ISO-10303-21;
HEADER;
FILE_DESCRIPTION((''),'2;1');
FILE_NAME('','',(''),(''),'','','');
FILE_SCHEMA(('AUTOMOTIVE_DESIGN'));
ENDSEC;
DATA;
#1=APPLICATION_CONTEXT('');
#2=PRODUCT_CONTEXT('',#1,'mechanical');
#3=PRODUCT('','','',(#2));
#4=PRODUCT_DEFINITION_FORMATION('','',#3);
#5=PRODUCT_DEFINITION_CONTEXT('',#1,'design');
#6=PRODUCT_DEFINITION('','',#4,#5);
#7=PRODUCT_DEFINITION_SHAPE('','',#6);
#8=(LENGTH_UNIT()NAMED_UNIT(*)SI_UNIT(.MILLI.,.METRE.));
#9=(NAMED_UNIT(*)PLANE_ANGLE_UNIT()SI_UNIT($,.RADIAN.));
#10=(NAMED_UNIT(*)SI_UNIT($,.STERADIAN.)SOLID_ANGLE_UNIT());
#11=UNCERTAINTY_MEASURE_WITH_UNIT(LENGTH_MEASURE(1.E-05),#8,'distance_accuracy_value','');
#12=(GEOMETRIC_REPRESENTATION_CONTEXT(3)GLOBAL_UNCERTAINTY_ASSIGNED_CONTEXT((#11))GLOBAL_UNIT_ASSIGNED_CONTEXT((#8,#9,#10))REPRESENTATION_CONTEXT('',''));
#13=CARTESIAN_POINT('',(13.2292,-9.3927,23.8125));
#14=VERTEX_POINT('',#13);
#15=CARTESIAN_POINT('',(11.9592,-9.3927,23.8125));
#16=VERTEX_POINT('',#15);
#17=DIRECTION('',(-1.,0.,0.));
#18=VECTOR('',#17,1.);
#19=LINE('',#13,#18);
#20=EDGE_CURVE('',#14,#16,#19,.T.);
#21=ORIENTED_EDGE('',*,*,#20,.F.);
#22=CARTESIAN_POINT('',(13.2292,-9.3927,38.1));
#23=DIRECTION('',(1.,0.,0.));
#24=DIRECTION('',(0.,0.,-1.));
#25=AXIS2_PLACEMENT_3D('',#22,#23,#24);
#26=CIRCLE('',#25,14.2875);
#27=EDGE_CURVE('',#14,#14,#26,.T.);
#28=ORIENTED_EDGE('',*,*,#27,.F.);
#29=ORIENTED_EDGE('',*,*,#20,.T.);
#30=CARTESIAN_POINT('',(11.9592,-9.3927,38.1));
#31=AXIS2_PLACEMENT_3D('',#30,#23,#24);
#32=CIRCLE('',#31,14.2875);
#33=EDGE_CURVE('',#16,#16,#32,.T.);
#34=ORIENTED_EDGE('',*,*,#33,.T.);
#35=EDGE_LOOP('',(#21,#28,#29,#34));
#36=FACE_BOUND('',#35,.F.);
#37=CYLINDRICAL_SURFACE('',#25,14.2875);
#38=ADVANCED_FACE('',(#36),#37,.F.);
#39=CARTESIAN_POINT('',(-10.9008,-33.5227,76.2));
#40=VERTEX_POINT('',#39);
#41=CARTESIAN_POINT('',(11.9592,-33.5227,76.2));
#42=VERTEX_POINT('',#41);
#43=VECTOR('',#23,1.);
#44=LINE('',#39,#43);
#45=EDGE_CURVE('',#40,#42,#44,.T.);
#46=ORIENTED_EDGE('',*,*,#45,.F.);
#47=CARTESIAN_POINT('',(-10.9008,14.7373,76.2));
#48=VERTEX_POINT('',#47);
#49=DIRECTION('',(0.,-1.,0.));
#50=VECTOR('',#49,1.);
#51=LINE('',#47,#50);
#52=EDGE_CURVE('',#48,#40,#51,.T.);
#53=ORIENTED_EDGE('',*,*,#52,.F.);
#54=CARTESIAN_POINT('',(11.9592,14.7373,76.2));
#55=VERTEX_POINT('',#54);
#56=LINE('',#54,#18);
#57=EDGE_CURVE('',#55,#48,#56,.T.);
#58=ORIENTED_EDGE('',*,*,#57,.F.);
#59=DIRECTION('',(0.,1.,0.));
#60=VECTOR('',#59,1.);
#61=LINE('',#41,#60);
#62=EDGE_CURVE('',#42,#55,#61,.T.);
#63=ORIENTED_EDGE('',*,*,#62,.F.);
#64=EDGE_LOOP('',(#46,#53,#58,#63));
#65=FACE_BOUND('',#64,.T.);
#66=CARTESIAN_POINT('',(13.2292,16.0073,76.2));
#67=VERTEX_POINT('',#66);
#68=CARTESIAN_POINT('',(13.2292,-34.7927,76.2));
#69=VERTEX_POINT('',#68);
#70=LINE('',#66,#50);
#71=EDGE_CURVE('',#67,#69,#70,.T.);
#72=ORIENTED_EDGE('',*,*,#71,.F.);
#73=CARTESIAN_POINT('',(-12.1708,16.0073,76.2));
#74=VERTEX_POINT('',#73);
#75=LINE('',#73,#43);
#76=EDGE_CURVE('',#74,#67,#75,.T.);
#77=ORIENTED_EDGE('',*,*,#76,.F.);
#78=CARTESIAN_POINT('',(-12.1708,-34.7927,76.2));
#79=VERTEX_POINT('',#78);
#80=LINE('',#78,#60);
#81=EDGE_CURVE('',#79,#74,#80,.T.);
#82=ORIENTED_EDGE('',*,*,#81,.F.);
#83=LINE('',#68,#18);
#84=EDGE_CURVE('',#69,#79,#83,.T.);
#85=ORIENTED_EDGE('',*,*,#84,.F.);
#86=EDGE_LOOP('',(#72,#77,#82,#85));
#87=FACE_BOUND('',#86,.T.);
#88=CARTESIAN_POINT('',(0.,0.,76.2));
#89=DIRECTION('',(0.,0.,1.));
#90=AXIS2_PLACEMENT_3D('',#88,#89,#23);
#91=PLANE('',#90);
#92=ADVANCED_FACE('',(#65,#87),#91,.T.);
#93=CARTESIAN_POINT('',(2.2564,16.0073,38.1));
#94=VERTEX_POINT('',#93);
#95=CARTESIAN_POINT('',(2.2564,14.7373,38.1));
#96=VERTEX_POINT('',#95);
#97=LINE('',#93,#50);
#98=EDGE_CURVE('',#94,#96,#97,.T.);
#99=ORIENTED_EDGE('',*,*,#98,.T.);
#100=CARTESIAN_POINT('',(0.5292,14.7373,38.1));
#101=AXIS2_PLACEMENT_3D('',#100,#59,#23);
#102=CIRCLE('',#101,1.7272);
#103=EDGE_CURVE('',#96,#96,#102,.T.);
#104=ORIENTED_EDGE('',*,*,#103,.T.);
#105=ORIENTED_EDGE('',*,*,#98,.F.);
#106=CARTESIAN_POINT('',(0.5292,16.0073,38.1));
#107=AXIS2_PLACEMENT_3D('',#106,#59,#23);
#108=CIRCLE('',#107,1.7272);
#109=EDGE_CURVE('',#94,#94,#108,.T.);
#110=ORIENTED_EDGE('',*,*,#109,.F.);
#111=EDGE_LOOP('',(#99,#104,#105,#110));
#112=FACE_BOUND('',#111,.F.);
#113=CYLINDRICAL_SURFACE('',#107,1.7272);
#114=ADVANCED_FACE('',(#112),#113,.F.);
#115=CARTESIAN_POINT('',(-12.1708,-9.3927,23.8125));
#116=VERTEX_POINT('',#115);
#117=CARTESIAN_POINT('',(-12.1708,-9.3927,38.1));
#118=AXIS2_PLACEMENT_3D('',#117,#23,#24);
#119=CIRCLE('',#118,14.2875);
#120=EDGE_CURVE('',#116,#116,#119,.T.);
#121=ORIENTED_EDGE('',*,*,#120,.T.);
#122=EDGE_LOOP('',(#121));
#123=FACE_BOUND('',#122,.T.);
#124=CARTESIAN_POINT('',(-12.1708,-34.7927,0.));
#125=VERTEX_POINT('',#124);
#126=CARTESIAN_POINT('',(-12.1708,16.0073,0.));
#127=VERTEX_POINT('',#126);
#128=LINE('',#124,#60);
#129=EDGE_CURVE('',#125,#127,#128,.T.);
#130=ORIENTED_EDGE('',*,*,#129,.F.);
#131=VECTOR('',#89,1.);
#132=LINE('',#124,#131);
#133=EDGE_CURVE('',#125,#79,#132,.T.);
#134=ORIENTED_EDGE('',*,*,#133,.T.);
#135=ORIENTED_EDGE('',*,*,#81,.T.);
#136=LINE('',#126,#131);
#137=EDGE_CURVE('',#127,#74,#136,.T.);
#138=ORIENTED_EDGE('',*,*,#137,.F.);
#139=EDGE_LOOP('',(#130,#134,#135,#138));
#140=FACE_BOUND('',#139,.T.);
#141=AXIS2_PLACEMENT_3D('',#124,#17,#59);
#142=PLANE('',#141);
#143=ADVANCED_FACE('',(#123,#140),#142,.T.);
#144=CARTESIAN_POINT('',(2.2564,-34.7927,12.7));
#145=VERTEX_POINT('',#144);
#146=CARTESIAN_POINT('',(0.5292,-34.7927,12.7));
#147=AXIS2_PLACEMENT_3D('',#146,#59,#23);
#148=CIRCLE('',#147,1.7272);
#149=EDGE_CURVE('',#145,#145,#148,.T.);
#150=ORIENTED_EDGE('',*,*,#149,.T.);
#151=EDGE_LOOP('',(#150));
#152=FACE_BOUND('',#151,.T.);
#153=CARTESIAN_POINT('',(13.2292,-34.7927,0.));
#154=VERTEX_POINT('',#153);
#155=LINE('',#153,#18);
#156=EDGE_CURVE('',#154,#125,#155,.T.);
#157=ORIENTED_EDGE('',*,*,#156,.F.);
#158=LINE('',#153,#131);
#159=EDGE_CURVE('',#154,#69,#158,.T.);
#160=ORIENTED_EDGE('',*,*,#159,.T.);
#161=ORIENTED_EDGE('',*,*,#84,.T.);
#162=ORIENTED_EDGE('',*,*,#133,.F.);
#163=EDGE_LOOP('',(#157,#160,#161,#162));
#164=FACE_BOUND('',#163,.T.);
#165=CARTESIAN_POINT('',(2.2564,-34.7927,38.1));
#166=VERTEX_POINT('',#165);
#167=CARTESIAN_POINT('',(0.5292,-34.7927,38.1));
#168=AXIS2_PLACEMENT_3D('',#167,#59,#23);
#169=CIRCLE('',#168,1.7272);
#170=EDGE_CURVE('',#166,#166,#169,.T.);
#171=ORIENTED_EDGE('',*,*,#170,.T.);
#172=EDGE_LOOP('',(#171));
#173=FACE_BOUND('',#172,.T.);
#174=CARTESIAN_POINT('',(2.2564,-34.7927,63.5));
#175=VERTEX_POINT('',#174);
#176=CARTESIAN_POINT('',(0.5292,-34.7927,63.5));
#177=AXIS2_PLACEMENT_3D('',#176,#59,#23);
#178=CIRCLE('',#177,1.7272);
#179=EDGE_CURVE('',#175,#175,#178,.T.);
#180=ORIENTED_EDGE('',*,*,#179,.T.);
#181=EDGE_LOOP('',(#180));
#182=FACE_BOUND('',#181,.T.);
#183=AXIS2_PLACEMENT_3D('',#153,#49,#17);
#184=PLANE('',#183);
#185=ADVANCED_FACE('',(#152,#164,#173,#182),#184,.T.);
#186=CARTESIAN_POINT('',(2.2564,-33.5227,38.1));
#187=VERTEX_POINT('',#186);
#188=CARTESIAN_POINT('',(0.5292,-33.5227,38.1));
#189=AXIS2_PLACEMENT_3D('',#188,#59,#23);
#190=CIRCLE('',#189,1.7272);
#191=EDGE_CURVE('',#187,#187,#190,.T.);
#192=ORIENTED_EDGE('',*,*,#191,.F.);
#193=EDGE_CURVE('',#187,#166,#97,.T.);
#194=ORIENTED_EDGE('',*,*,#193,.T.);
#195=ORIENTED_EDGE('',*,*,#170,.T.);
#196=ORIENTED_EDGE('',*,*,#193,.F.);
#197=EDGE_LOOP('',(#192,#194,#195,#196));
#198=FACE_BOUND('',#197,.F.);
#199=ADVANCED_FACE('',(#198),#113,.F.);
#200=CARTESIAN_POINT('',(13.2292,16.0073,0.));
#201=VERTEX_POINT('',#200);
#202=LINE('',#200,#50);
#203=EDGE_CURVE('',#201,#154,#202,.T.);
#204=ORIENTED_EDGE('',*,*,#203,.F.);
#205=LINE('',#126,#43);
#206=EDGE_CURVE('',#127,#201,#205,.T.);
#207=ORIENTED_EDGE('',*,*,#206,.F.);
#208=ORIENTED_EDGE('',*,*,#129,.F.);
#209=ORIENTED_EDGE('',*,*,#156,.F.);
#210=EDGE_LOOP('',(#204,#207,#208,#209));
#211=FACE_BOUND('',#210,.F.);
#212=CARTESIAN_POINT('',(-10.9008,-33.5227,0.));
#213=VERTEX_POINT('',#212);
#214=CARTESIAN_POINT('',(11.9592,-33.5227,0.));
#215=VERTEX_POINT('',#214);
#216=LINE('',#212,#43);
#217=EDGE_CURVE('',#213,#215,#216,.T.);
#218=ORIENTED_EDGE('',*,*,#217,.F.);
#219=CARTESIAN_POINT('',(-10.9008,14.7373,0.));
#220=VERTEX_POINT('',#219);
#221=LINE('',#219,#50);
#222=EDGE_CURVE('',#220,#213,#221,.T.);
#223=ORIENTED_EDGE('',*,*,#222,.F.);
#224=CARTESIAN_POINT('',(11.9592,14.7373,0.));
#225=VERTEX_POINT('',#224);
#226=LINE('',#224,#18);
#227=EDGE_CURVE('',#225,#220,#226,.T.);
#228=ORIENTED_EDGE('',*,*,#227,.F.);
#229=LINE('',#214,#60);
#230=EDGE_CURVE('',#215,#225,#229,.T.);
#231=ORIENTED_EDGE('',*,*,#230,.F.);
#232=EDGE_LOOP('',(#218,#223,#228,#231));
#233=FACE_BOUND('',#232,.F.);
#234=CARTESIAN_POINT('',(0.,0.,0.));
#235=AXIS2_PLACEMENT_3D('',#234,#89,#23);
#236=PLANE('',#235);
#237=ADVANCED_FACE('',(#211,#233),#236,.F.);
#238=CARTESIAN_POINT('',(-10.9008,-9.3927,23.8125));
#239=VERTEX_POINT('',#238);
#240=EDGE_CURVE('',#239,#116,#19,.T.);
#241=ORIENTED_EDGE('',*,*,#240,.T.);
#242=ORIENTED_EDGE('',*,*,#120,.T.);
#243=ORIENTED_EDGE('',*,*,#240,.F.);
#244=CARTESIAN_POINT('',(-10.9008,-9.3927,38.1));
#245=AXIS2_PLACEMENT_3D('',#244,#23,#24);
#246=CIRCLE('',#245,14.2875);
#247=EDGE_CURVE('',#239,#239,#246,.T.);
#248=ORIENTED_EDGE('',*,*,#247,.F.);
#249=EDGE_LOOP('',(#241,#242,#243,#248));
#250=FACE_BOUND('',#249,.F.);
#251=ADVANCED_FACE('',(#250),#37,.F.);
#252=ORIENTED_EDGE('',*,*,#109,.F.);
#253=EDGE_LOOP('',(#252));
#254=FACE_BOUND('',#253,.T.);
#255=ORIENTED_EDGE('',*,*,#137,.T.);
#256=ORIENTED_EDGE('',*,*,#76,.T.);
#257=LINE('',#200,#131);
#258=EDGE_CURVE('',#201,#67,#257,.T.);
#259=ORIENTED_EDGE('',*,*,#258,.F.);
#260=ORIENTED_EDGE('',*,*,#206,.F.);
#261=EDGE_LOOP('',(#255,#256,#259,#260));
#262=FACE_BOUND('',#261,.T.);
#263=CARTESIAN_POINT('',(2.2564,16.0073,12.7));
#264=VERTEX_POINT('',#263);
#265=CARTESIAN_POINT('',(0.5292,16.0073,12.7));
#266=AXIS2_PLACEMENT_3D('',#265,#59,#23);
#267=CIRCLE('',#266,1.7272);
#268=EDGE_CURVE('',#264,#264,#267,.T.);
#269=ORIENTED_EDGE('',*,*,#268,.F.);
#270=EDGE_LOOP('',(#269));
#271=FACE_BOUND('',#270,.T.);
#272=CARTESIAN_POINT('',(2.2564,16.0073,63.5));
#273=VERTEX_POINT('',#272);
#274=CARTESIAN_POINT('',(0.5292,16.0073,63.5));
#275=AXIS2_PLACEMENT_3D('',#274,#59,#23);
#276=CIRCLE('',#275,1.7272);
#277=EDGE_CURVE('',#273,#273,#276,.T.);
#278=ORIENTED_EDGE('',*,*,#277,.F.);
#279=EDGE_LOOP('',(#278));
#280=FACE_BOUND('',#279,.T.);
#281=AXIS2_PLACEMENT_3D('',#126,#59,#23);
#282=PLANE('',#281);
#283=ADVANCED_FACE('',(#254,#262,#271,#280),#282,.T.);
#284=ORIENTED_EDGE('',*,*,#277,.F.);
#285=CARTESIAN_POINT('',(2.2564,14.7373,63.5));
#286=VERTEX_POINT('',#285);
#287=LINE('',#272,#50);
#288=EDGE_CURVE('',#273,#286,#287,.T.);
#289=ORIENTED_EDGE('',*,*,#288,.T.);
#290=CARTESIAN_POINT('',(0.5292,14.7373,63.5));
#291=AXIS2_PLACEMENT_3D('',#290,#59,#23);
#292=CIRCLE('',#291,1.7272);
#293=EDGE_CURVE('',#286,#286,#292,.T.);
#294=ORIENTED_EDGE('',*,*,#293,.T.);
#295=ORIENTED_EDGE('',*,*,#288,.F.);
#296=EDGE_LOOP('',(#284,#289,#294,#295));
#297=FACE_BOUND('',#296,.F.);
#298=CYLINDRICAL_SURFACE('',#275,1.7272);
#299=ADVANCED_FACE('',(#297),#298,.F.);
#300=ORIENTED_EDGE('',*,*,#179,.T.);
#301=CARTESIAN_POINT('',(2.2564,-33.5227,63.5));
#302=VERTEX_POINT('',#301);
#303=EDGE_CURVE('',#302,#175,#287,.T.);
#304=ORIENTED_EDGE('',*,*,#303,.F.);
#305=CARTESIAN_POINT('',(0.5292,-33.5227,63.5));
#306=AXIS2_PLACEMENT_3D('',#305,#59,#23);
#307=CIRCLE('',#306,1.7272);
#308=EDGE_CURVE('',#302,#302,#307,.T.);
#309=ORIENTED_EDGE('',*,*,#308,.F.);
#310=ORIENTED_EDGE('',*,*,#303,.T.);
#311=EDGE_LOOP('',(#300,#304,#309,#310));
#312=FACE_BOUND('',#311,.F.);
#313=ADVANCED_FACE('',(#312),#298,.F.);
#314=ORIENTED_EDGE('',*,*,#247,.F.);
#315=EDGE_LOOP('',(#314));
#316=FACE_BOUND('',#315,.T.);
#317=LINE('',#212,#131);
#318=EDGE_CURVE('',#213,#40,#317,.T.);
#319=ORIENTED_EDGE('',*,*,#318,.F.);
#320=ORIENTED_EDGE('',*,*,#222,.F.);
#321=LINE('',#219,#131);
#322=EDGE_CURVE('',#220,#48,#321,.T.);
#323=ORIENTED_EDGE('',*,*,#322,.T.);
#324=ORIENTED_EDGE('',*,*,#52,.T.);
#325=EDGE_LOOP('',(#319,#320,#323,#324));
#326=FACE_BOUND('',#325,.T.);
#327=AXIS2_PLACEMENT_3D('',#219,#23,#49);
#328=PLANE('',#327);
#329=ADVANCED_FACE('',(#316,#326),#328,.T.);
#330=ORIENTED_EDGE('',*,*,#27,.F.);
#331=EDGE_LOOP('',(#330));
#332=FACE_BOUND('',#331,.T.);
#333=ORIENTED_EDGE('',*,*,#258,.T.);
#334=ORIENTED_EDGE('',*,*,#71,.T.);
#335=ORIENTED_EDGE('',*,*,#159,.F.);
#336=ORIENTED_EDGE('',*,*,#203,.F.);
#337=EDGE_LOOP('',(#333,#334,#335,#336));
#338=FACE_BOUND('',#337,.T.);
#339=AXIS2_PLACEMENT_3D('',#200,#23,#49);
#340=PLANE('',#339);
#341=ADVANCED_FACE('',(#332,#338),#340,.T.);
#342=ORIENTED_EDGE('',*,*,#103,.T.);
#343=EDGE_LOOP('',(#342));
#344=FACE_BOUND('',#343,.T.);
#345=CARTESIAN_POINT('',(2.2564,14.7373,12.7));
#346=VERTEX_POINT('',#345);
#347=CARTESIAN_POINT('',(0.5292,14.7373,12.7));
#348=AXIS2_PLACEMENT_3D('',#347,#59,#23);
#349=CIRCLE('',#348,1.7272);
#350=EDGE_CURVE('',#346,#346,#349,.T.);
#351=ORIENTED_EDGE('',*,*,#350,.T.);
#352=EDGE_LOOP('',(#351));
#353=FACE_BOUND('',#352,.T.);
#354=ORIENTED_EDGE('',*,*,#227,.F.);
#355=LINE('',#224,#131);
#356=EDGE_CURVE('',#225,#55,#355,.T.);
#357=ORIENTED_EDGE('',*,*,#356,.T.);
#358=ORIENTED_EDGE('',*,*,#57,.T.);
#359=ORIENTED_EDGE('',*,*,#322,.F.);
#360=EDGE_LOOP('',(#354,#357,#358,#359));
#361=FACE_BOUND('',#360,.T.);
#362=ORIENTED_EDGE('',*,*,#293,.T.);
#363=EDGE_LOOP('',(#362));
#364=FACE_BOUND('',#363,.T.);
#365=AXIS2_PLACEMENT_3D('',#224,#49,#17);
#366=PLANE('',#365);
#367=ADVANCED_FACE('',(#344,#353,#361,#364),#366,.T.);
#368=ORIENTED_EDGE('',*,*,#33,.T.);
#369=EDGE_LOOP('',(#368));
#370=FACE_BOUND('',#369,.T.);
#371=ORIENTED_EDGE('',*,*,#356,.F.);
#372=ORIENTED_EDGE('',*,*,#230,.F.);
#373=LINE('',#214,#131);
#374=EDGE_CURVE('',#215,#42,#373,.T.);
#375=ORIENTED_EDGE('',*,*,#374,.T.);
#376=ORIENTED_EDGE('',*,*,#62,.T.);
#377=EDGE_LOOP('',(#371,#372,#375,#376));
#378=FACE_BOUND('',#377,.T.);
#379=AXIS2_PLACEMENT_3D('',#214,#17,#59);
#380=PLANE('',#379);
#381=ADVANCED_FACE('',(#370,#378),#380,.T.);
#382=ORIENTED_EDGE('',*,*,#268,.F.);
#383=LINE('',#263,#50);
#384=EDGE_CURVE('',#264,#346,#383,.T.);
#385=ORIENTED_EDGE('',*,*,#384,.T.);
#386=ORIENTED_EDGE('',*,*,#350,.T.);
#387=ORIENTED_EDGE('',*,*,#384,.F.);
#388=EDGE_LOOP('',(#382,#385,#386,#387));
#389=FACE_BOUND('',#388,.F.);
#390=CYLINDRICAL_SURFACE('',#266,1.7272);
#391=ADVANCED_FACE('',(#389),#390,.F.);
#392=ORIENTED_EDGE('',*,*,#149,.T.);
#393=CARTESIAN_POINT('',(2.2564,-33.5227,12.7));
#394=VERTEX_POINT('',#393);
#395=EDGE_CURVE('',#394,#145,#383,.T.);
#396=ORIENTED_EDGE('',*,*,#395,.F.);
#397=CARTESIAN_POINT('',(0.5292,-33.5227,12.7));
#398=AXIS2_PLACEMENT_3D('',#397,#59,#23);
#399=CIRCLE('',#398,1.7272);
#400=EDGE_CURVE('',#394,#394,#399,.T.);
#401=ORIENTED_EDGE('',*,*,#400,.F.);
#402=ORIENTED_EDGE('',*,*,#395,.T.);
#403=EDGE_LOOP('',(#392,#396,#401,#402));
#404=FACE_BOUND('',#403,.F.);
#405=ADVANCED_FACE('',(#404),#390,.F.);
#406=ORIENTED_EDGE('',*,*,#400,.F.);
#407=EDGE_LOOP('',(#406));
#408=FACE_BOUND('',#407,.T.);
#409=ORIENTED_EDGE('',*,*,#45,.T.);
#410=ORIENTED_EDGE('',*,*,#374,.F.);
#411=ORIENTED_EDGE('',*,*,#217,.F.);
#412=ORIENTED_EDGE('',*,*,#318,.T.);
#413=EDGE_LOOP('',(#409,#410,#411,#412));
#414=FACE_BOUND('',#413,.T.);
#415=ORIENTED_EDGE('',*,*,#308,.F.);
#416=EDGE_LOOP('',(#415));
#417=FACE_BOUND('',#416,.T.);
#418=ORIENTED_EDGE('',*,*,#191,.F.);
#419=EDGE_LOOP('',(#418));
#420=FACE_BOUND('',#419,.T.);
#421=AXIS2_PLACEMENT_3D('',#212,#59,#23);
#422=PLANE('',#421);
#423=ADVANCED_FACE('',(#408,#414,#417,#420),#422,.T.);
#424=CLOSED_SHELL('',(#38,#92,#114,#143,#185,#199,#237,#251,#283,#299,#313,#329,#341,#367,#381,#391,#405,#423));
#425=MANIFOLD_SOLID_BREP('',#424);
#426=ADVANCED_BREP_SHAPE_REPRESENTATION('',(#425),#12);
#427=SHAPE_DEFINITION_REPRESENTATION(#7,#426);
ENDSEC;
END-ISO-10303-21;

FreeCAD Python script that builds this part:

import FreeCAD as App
import Part
import Sketcher

V = App.Vector
Q = App.Units.Quantity

doc = App.newDocument("Part")
body = doc.addObject("PartDesign::Body", "Body")

sketch1 = body.newObject("Sketcher::SketchObject", "Sketch")
sketch1.AttachmentSupport = (doc.getObject("XY_Plane"), [""])
sketch1.MapMode = "FlatFace"
sketch1.addGeometry([
    Part.LineSegment(V(13, 16, 0), V(-12, 16, 0)),
    Part.LineSegment(V(-12, 16, 0), V(-12, -35, 0)),
    Part.LineSegment(V(-12, -35, 0), V(13, -35, 0)),
    Part.LineSegment(V(13, -35, 0), V(13, 16, 0)),
    Part.LineSegment(V(-11, 15, 0), V(12, 15, 0)),
    Part.LineSegment(V(12, 15, 0), V(12, -34, 0)),
    Part.LineSegment(V(12, -34, 0), V(-11, -34, 0)),
    Part.LineSegment(V(-11, -34, 0), V(-11, 15, 0)),
], False)
sketch1.addConstraint([
    Sketcher.Constraint("Coincident", 0, 2, 1, 1),
    Sketcher.Constraint("Coincident", 1, 2, 2, 1),
    Sketcher.Constraint("Coincident", 2, 2, 3, 1),
    Sketcher.Constraint("Coincident", 3, 2, 0, 1),
    Sketcher.Constraint("Coincident", 4, 2, 5, 1),
    Sketcher.Constraint("Coincident", 5, 2, 6, 1),
    Sketcher.Constraint("Coincident", 6, 2, 7, 1),
    Sketcher.Constraint("Coincident", 7, 2, 4, 1),
    Sketcher.Constraint("Horizontal", 0),
    Sketcher.Constraint("Vertical", 1),
    Sketcher.Constraint("Horizontal", 2),
    Sketcher.Constraint("Vertical", 3),
    Sketcher.Constraint("Horizontal", 4),
    Sketcher.Constraint("Vertical", 5),
    Sketcher.Constraint("Horizontal", 6),
    Sketcher.Constraint("Vertical", 7),
    Sketcher.Constraint("DistanceX", 0, 2, 0, 1, Q("1 in")),
    Sketcher.Constraint("DistanceY", 1, 2, 1, 1, Q("2 in")),
    Sketcher.Constraint("DistanceX", 4, 2, 3, 2, Q("0.05 in")),
    Sketcher.Constraint("DistanceY", 4, 2, 3, 2, Q("0.05 in")),
    Sketcher.Constraint("DistanceY", 2, 2, 5, 2, Q("0.05 in")),
    Sketcher.Constraint("DistanceX", 1, 2, 6, 2, Q("0.05 in")),
    Sketcher.Constraint("DistanceY", -1, 1, 0, 2, Q("0.6302 in")),
    Sketcher.Constraint("DistanceX", 0, 2, -1, 1, 12.1708),
])
pad1 = body.newObject("PartDesign::Pad", "Pad")
pad1.Profile = sketch1
pad1.Length = Q("3 in")

sketch2 = body.newObject("Sketcher::SketchObject", "Sketch001")
sketch2.AttachmentSupport = (doc.getObject("XZ_Plane"), [""])
sketch2.MapMode = "FlatFace"
sketch2.AttachmentOffset = App.Placement(V(0, 0, -0.6302087 * 25.4), App.Rotation())
sketch2.addGeometry(Part.Circle(V(0.5, 12.7, 0), V(0, 0, 1), 1.7), False)
sketch2.addConstraint([
    Sketcher.Constraint("Diameter", 0, Q("0.136 in")),
    Sketcher.Constraint("DistanceY", -1, 1, 0, 3, Q("0.5 in")),
    Sketcher.Constraint("DistanceX", -1, 1, 0, 3, 0.5292),
])
pocket1 = body.newObject("PartDesign::Pocket", "Pocket")
pocket1.Profile = sketch2
pocket1.Type = "ThroughAll"
pocket1.Reversed = True
doc.recompute()

linearpattern = body.newObject("PartDesign::LinearPattern", "LinearPattern")
linearpattern.Originals = [pocket1]
linearpattern.Direction = (doc.getObject("Z_Axis"), [""])
linearpattern.Mode = "offset"
linearpattern.Offset = Q("1 in")
linearpattern.Occurrences = 8
body.Tip = linearpattern

sketch3 = body.newObject("Sketcher::SketchObject", "Sketch002")
sketch3.AttachmentSupport = (doc.getObject("YZ_Plane"), [""])
sketch3.MapMode = "FlatFace"
sketch3.AttachmentOffset = App.Placement(V(0, 0, 13.2292), App.Rotation())
sketch3.addGeometry(Part.Circle(V(-9, 38, 0), V(0, 0, 1), 14), False)
sketch3.addConstraint([
    Sketcher.Constraint("Diameter", 0, Q("1.125 in")),
    Sketcher.Constraint("DistanceY", -1, 1, 0, 3, Q("1.5 in")),
    Sketcher.Constraint("DistanceX", 0, 3, -1, 1, Q("0.3698 in")),
])
pocket2 = body.newObject("PartDesign::Pocket", "Pocket001")
pocket2.Profile = sketch3
pocket2.Type = "ThroughAll"

doc.recompute()
